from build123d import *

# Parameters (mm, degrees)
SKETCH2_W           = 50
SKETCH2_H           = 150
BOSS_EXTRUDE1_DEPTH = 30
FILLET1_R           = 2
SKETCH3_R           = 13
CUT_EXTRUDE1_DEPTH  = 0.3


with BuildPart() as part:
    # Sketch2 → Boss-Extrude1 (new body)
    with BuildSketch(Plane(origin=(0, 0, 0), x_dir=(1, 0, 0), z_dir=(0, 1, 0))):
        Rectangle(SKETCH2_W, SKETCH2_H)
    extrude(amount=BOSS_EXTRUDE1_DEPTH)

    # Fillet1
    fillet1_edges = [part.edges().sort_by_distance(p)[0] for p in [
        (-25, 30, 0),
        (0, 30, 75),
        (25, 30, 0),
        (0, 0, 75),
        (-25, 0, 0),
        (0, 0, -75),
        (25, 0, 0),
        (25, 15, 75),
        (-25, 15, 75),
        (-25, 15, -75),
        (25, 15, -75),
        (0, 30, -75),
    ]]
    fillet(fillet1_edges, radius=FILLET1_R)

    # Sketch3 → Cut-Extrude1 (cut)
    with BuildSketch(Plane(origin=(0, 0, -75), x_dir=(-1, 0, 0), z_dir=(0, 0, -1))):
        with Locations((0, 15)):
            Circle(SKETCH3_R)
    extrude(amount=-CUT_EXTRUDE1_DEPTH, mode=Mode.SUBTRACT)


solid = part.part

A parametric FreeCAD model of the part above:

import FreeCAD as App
import Part
import Sketcher


def add_polygon(sketch, points):
    """Adds a closed chain of lines whose ends are joined by coincident constraints."""
    first, n = sketch.GeometryCount, len(points)
    for a, b in zip(points, points[1:] + points[:1]):
        sketch.addGeometry(Part.LineSegment(App.Vector(*a, 0), App.Vector(*b, 0)), False)
    for i in range(n):
        sketch.addConstraint(Sketcher.Constraint("Coincident", first + i, 2, first + (i + 1) % n, 1))

doc = App.newDocument("Part")
params = doc.addObject("Spreadsheet::Sheet", "Params")
for row, (alias, value) in enumerate([
    ("sketch1_width", "50 mm"),
    ("sketch1_height", "150 mm"),
    ("pad1_length", "30 mm"),
    ("fillet_radius", "2 mm"),
    ("sketch2_diameter", "26 mm"),
    ("pocket1_length", "0.3 mm"),
], start=1):
    params.set(f"A{row}", alias)
    params.set(f"B{row}", "=" + value)
    params.setAlias(f"B{row}", alias)

body = doc.addObject("PartDesign::Body", "Body")

# Sketch on XZ plane
sketch1 = body.newObject("Sketcher::SketchObject", "Sketch")
sketch1.AttachmentSupport = (doc.getObject("XZ_Plane"), [""])
sketch1.MapMode = "FlatFace"
add_polygon(sketch1, [(-25, -75), (-25, 75), (25, 75), (25, -75)])  # lines 0-3
sketch1.addConstraint([
    Sketcher.Constraint("Vertical", 0),
    Sketcher.Constraint("Horizontal", 1),
    Sketcher.Constraint("Vertical", 2),
    Sketcher.Constraint("Horizontal", 3),
    Sketcher.Constraint("Symmetric", 0, 2, 2, 2, -1, 1),
    Sketcher.Constraint("DistanceX", 1, 1, 1, 2, 50.0),
    Sketcher.Constraint("DistanceY", 0, 1, 0, 2, 150.0),
])
sketch1.setExpression("Constraints[9]", "Params.sketch1_width")
sketch1.setExpression("Constraints[10]", "Params.sketch1_height")
pad1 = body.newObject("PartDesign::Pad", "Pad")
pad1.Profile = sketch1
pad1.setExpression("Length", "Params.pad1_length")
pad1.Reversed = True
doc.recompute()

fillet = body.newObject("PartDesign::Fillet", "Fillet")
fillet.Base = (pad1, ["Edge1"])
fillet.UseAllEdges = True
fillet.setExpression("Radius", "Params.fillet_radius")

# Sketch on XY plane
sketch2 = body.newObject("Sketcher::SketchObject", "Sketch001")
sketch2.AttachmentSupport = (doc.getObject("XY_Plane"), [""])
sketch2.MapMode = "FlatFace"
sketch2.AttachmentOffset = App.Placement(App.Vector(0, 0, -75), App.Rotation())
sketch2.addGeometry(Part.Circle(App.Vector(0, 15, 0), App.Vector(0, 0, 1), 13), False)
sketch2.addConstraint([
    Sketcher.Constraint("PointOnObject", 0, 3, -2),
    Sketcher.Constraint("Diameter", 0, 26.0),
    Sketcher.Constraint("DistanceY", -1, 1, 0, 3, 15.0),
])
sketch2.setExpression("Constraints[1]", "Params.sketch2_diameter")
pocket1 = body.newObject("PartDesign::Pocket", "Pocket")
pocket1.Profile = sketch2
pocket1.setExpression("Length", "Params.pocket1_length")
pocket1.Reversed = True

doc.recompute()
